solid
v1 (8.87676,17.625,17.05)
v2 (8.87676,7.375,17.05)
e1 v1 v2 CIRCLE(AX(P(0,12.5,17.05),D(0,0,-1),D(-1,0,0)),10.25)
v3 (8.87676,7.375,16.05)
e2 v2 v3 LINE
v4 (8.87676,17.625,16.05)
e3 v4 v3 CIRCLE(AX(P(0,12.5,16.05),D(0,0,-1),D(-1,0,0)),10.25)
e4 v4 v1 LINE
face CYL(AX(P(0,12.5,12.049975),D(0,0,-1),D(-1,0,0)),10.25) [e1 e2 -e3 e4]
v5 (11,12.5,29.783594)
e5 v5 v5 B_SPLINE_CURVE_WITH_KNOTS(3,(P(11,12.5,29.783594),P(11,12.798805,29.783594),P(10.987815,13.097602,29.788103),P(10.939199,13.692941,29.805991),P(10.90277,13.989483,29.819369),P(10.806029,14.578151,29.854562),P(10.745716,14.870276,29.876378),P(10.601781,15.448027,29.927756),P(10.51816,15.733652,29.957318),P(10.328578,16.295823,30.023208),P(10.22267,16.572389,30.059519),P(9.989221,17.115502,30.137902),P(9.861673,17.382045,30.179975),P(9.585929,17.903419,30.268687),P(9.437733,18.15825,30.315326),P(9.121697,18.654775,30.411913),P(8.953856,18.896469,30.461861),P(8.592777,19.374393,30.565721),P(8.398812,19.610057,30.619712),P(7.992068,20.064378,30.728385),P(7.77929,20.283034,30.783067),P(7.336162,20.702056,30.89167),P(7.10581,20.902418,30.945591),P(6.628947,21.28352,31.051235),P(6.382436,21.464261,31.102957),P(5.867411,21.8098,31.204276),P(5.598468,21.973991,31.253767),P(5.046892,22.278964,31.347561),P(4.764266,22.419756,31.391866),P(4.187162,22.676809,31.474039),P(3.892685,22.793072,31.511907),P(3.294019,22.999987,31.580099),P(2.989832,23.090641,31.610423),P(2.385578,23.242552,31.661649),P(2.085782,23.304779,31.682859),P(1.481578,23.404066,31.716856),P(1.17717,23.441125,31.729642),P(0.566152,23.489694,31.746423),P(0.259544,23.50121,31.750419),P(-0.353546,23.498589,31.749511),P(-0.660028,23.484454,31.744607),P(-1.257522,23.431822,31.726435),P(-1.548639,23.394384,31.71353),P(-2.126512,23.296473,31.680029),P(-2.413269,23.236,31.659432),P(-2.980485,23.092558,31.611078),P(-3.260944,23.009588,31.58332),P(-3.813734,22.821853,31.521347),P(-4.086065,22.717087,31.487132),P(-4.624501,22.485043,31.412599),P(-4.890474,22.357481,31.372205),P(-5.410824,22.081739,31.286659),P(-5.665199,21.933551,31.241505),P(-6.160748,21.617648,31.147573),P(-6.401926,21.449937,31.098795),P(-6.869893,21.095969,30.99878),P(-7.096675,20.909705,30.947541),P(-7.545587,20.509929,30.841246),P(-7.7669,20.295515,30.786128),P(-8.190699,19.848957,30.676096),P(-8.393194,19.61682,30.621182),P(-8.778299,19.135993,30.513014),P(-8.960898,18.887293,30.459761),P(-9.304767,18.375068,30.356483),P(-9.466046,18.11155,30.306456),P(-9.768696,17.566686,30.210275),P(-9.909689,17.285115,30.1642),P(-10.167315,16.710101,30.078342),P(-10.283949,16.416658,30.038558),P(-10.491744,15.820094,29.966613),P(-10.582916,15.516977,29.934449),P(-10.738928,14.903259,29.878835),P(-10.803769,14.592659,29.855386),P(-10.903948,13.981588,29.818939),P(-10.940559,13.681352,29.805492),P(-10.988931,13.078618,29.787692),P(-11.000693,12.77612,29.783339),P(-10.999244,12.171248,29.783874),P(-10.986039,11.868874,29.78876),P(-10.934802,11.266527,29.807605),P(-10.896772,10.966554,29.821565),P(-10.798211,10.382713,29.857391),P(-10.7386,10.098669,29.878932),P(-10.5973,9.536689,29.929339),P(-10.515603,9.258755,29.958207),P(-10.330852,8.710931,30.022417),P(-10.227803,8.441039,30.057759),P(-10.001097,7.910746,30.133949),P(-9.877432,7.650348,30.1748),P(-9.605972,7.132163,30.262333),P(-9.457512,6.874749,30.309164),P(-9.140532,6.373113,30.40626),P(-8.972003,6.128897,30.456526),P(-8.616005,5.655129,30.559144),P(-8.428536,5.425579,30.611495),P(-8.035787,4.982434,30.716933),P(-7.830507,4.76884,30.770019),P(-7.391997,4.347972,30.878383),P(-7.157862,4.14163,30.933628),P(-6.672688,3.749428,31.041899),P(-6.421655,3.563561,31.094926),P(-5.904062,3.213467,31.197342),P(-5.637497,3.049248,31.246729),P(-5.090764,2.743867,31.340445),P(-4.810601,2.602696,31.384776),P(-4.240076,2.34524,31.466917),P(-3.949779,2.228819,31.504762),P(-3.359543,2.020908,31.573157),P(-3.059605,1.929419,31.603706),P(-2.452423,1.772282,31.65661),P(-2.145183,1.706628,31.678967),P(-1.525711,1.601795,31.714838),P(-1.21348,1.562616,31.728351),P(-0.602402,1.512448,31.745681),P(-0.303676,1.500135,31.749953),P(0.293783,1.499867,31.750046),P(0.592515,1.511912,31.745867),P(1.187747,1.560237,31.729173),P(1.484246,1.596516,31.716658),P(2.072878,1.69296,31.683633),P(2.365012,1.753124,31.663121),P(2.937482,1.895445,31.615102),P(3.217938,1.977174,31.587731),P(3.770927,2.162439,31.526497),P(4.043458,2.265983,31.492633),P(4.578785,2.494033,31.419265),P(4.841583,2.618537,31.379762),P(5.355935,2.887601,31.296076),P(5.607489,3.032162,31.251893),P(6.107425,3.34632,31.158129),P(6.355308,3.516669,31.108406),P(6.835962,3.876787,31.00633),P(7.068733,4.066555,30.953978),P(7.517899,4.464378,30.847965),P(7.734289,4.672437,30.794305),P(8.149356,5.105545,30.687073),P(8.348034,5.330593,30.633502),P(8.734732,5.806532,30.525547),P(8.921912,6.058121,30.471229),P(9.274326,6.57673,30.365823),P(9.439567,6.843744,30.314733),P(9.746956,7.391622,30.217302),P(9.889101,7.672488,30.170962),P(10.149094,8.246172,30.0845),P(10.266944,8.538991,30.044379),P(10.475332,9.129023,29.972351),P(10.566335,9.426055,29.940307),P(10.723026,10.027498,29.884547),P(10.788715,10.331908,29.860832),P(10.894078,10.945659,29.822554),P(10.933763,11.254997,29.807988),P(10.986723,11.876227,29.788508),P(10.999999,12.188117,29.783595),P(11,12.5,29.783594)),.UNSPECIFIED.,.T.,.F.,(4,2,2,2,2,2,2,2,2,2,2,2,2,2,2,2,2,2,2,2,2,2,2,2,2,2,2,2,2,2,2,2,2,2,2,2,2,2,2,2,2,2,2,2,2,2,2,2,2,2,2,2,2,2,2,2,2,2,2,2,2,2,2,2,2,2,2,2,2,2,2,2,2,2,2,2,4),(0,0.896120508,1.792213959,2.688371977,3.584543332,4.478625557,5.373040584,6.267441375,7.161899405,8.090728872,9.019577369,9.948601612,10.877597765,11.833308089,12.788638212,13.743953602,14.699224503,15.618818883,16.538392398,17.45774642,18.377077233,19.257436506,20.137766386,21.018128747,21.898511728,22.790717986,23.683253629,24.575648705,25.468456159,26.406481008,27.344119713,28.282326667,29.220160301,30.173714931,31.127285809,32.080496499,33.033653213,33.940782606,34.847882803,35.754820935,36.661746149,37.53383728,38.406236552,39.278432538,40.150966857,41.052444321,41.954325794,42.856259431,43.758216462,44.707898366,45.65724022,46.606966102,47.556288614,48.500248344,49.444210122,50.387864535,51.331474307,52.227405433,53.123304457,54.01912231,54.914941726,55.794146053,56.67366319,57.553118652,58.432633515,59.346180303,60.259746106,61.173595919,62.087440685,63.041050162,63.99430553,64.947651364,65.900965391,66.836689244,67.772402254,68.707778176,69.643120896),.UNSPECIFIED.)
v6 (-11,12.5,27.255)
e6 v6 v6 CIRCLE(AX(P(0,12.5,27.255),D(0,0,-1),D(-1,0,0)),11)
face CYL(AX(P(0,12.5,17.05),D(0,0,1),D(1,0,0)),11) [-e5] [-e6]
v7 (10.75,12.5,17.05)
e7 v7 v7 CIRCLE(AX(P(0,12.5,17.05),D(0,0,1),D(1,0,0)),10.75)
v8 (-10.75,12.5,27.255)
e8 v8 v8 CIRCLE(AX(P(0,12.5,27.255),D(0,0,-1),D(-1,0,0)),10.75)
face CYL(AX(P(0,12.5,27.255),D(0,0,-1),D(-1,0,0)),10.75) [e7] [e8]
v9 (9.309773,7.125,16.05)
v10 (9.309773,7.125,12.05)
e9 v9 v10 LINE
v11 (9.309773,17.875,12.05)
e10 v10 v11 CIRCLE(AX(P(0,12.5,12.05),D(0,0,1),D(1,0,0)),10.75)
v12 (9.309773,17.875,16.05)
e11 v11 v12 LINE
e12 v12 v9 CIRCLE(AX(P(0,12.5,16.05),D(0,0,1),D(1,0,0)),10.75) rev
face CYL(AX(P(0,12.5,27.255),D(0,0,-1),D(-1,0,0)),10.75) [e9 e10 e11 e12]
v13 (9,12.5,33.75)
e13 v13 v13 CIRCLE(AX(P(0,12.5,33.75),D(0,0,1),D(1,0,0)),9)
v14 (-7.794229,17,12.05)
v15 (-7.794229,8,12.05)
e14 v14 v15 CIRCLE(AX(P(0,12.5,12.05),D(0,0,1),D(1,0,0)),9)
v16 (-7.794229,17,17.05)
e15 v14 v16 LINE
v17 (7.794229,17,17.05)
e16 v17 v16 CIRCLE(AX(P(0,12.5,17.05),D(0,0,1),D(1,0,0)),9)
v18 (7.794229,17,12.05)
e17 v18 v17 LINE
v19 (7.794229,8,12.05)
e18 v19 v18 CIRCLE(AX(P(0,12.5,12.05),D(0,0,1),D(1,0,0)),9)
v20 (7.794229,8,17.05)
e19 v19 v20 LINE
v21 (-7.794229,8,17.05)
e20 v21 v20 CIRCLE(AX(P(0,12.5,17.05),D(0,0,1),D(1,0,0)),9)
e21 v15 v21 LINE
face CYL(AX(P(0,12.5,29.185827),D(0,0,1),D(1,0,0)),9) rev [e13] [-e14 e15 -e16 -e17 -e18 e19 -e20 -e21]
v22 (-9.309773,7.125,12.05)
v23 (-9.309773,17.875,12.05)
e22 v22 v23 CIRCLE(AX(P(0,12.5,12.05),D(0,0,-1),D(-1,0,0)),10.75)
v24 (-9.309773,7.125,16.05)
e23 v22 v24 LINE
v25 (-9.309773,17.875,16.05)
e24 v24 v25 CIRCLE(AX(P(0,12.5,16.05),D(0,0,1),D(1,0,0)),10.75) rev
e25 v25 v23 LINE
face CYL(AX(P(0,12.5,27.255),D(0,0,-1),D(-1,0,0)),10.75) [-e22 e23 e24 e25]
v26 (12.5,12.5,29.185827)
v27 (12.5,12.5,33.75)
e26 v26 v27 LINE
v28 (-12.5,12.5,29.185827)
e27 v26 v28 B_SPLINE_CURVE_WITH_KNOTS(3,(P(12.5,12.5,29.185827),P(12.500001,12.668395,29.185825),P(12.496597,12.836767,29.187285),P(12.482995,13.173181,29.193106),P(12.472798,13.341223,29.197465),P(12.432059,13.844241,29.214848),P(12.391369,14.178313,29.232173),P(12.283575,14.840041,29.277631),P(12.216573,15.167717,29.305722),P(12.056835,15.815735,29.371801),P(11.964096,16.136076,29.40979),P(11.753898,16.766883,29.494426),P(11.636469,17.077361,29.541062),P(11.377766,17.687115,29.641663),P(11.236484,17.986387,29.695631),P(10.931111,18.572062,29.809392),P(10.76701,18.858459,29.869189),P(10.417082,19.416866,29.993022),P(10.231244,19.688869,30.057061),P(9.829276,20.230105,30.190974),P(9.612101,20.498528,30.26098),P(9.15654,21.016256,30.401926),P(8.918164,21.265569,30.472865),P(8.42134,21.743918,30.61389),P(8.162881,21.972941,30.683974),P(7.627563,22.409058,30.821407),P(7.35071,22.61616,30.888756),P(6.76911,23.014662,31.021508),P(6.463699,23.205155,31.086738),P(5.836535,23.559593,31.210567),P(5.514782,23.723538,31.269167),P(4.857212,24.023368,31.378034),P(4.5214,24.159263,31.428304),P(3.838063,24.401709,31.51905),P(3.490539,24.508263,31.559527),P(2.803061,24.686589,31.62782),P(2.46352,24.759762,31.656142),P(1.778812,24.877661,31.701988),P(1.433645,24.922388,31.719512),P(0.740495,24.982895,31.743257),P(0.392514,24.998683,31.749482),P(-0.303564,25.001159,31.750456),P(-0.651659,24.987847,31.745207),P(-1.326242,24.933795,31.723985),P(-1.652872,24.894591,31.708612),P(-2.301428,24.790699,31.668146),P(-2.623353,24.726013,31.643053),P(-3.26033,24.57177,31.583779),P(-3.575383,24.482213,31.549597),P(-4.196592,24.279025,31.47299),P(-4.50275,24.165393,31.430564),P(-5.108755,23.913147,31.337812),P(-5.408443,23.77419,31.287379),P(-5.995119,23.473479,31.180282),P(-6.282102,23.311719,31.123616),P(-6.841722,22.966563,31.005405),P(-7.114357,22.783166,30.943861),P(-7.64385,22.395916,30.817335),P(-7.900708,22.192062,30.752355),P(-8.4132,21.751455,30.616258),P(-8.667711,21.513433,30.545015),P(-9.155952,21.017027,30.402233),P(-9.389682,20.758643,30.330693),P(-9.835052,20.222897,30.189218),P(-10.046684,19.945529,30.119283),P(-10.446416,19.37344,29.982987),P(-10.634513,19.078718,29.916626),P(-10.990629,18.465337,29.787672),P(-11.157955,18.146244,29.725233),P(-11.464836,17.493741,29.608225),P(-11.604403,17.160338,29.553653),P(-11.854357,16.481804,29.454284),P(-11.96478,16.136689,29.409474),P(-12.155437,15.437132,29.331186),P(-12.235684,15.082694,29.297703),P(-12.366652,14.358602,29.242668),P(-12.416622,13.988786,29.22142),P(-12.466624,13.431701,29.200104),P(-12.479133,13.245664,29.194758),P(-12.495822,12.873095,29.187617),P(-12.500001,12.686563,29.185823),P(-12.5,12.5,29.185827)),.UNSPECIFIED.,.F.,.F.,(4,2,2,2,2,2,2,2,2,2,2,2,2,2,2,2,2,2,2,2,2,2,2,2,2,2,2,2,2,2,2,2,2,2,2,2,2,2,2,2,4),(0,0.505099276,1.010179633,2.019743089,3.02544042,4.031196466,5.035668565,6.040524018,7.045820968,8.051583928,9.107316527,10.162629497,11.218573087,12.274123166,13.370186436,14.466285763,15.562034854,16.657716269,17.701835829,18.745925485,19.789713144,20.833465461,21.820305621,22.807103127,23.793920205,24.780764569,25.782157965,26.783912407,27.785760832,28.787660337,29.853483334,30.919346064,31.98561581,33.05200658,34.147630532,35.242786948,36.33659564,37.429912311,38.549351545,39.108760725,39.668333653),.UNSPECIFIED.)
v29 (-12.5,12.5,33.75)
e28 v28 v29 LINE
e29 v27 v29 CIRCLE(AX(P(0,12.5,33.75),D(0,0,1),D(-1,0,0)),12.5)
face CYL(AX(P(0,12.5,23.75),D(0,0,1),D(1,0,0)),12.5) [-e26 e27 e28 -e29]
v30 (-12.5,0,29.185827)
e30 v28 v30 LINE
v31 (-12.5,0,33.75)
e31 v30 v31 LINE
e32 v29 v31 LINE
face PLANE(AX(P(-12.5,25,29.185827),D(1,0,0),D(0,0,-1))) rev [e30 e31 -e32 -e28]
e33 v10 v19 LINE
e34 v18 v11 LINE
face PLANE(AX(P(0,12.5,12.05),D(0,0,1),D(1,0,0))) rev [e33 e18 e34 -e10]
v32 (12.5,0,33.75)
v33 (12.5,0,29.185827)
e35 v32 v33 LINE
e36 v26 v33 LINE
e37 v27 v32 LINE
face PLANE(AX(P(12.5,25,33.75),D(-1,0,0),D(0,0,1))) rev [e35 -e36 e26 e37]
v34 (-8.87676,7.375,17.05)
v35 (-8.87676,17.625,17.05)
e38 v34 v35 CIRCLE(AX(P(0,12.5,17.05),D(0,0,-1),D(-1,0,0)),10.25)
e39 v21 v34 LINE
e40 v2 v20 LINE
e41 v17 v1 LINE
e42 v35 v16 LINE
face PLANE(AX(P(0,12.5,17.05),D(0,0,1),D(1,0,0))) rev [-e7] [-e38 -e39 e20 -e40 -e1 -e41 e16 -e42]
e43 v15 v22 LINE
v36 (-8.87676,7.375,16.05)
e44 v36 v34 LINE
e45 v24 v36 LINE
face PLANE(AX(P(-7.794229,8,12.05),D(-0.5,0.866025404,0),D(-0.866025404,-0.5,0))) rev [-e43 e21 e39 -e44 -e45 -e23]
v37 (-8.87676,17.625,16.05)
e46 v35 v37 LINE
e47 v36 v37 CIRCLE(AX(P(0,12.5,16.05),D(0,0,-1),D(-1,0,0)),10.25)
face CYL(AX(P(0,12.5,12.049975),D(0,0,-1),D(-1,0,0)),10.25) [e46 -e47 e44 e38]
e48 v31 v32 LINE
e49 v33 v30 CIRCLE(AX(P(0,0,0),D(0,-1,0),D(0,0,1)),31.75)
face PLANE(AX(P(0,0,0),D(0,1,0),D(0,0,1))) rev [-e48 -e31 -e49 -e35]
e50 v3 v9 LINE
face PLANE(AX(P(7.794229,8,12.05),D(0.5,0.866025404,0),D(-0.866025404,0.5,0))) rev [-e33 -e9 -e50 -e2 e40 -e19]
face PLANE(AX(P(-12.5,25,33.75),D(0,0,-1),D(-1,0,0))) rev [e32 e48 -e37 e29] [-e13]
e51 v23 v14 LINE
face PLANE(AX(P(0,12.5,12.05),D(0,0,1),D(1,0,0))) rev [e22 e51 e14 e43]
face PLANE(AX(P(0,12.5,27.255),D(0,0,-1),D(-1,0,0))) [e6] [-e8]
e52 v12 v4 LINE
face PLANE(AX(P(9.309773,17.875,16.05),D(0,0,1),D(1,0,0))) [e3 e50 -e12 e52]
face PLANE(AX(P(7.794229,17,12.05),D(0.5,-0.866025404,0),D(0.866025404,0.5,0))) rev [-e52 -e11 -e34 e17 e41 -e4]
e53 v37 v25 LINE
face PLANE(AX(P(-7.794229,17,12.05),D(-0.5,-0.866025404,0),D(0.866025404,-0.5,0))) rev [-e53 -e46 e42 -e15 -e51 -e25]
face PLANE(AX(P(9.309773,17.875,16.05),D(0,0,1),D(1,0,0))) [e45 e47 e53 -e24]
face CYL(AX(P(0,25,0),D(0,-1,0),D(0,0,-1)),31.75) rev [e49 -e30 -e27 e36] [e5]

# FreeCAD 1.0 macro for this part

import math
import FreeCAD as App
import Part
import Sketcher

V = App.Vector
Q = App.Units.Quantity


def add_polygon(sketch, points):
    """Adds a closed chain of lines whose ends are joined by coincident constraints."""
    first, n = sketch.GeometryCount, len(points)
    for a, b in zip(points, points[1:] + points[:1]):
        sketch.addGeometry(Part.LineSegment(App.Vector(*a, 0), App.Vector(*b, 0)), False)
    for i in range(n):
        sketch.addConstraint(Sketcher.Constraint("Coincident", first + i, 2, first + (i + 1) % n, 1))

doc = App.newDocument("Part")
body = doc.addObject("PartDesign::Body", "Body")

# Sketch on XZ plane
sketch1 = body.newObject("Sketcher::SketchObject", "Sketch")
sketch1.AttachmentSupport = (doc.getObject("XZ_Plane"), [""])
sketch1.MapMode = "FlatFace"
sketch1.addGeometry(Part.LineSegment(V(-12.5, 29.2, 0), V(-12.5, 33.8, 0)), False)
sketch1.addGeometry(Part.LineSegment(V(-12.5, 33.8, 0), V(12.5, 33.8, 0)), False)
sketch1.addGeometry(Part.LineSegment(V(12.5, 33.8, 0), V(12.5, 29.2, 0)), False)
sketch1.addGeometry(Part.ArcOfCircle(Part.Circle(V(0, 0, 0), V(0, 0, 1), 31.8), math.radians(67), math.radians(113)), False)
sketch1.addConstraint(Sketcher.Constraint("Coincident", 0, 2, 1, 1))
sketch1.addConstraint(Sketcher.Constraint("Coincident", 1, 2, 2, 1))
sketch1.addConstraint(Sketcher.Constraint("Coincident", 2, 2, 3, 1))
sketch1.addConstraint(Sketcher.Constraint("Coincident", 3, 2, 0, 1))
sketch1.addConstraint(Sketcher.Constraint("Vertical", 0))
sketch1.addConstraint(Sketcher.Constraint("Horizontal", 1))
sketch1.addConstraint(Sketcher.Constraint("Vertical", 2))
sketch1.addConstraint(Sketcher.Constraint("Coincident", 3, 3, -1, 1))
sketch1.addConstraint(Sketcher.Constraint("Horizontal", 2, 2, 3, 2))
sketch1.addConstraint(Sketcher.Constraint("DistanceX", 1, 1, 1, 2, Q("25 mm")))
sketch1.addConstraint(Sketcher.Constraint("Radius", 3, Q("31.75 mm")))
sketch1.addConstraint(Sketcher.Constraint("DistanceY", -1, 1, 0, 2, Q("33.75 mm")))
pad1 = body.newObject("PartDesign::Pad", "Pad")
pad1.Profile = sketch1
pad1.Length = 25
pad1.Reversed = True

# Sketch on XY plane
sketch2 = body.newObject("Sketcher::SketchObject", "Sketch001")
sketch2.AttachmentSupport = (doc.getObject("XY_Plane"), [""])
sketch2.MapMode = "FlatFace"
sketch2.AttachmentOffset = App.Placement(V(0, 0, 33.75), App.Rotation())
sketch2.addGeometry(Part.Circle(V(0, 12, 0), V(0, 0, 1), 9), False)
sketch2.addConstraint(Sketcher.Constraint("PointOnObject", 0, 3, -2))
sketch2.addConstraint(Sketcher.Constraint("Diameter", 0, Q("18 mm")))
sketch2.addConstraint(Sketcher.Constraint("DistanceY", -1, 1, 0, 3, Q("12.5 mm")))
pocket1 = body.newObject("PartDesign::Pocket", "Pocket")
pocket1.Profile = sketch2
pocket1.Type = "ThroughAll"

# Sketch on XY plane
sketch3 = body.newObject("Sketcher::SketchObject", "Sketch002")
sketch3.AttachmentSupport = (doc.getObject("XY_Plane"), [""])
sketch3.MapMode = "FlatFace"
sketch3.AttachmentOffset = App.Placement(V(0, 0, 33.75), App.Rotation())
sketch3.addGeometry(Part.Circle(V(0, 12, 0), V(0, 0, 1), 11), False)
sketch3.addGeometry(Part.Circle(V(0, 12, 0), V(0, 0, 1), 9), False)
sketch3.addConstraint(Sketcher.Constraint("Coincident", 1, 3, 0, 3))
sketch3.addConstraint(Sketcher.Constraint("PointOnObject", 0, 3, -2))
sketch3.addConstraint(Sketcher.Constraint("Diameter", 0, Q("22 mm")))
sketch3.addConstraint(Sketcher.Constraint("Diameter", 1, Q("18 mm")))
sketch3.addConstraint(Sketcher.Constraint("DistanceY", -1, 1, 0, 3, Q("12.5 mm")))
pad2 = body.newObject("PartDesign::Pad", "Pad001")
pad2.Profile = sketch3
pad2.Length = 16.7
pad2.Reversed = True

# Sketch on XY plane
sketch4 = body.newObject("Sketcher::SketchObject", "Sketch003")
sketch4.AttachmentSupport = (doc.getObject("XY_Plane"), [""])
sketch4.MapMode = "FlatFace"
sketch4.AttachmentOffset = App.Placement(V(0, 0, 17.05), App.Rotation())
sketch4.addGeometry(Part.LineSegment(V(-9.5, 18, 0), V(-7.8, 17, 0)), False)
sketch4.addGeometry(Part.ArcOfCircle(Part.Circle(V(0, 12.5, 0), V(0, 0, 1), 9), math.radians(150), math.radians(210)), False)
sketch4.addGeometry(Part.LineSegment(V(-7.8, 8, 0), V(-9.5, 7, 0)), False)
sketch4.addGeometry(Part.ArcOfCircle(Part.Circle(V(0, 12.5, 0), V(0, 0, 1), 11), math.radians(150), math.radians(210)), False)
sketch4.addGeometry(Part.LineSegment(V(9.5, 7, 0), V(7.8, 8, 0)), False)
sketch4.addGeometry(Part.ArcOfCircle(Part.Circle(V(0, 12.5, 0), V(0, 0, 1), 9), math.radians(-30), math.radians(30)), False)
sketch4.addGeometry(Part.LineSegment(V(7.8, 17, 0), V(9.5, 18, 0)), False)
sketch4.addGeometry(Part.ArcOfCircle(Part.Circle(V(0, 12.5, 0), V(0, 0, 1), 11), math.radians(-30), math.radians(30)), False)
sketch4.addConstraint(Sketcher.Constraint("Coincident", 0, 2, 1, 1))
sketch4.addConstraint(Sketcher.Constraint("Coincident", 1, 2, 2, 1))
sketch4.addConstraint(Sketcher.Constraint("Coincident", 2, 2, 3, 2))
sketch4.addConstraint(Sketcher.Constraint("Coincident", 3, 1, 0, 1))
sketch4.addConstraint(Sketcher.Constraint("Coincident", 4, 2, 5, 1))
sketch4.addConstraint(Sketcher.Constraint("Coincident", 5, 2, 6, 1))
sketch4.addConstraint(Sketcher.Constraint("Coincident", 6, 2, 7, 2))
sketch4.addConstraint(Sketcher.Constraint("Coincident", 7, 1, 4, 1))
sketch4.addConstraint(Sketcher.Constraint("Coincident", 3, 3, 1, 3))
sketch4.addConstraint(Sketcher.Constraint("Coincident", 5, 3, 1, 3))
sketch4.addConstraint(Sketcher.Constraint("Coincident", 7, 3, 1, 3))
sketch4.addConstraint(Sketcher.Constraint("Equal", 1, 5))
sketch4.addConstraint(Sketcher.Constraint("Equal", 3, 7))
sketch4.addConstraint(Sketcher.Constraint("Symmetric", 1, 2, 4, 2, -2))
sketch4.addConstraint(Sketcher.Constraint("Parallel", 0, 4))
sketch4.addConstraint(Sketcher.Constraint("Parallel", 2, 6))
sketch4.addConstraint(Sketcher.Constraint("Horizontal", 0, 2, 5, 2))
sketch4.addConstraint(Sketcher.Constraint("Horizontal", 3, 1, 6, 2))
sketch4.addConstraint(Sketcher.Constraint("Vertical", 0, 2, 1, 2))
sketch4.addConstraint(Sketcher.Constraint("Radius", 1, Q("9 mm")))
sketch4.addConstraint(Sketcher.Constraint("Radius", 3, Q("11 mm")))
sketch4.addConstraint(Sketcher.Constraint("Angle", 0, Q("-30 deg")))
sketch4.addConstraint(Sketcher.Constraint("DistanceY", -1, 1, 0, 2, Q("17 mm")))
sketch4.addConstraint(Sketcher.Constraint("DistanceY", -1, 1, 1, 2, Q("8 mm")))
pad3 = body.newObject("PartDesign::Pad", "Pad002")
pad3.Profile = sketch4
pad3.Length = 5
pad3.Reversed = True

# Sketch on XY plane
sketch5 = body.newObject("Sketcher::SketchObject", "Sketch004")
sketch5.AttachmentSupport = (doc.getObject("XY_Plane"), [""])
sketch5.MapMode = "FlatFace"
sketch5.AttachmentOffset = App.Placement(V(0, 0, 27.255), App.Rotation())
sketch5.addGeometry(Part.Circle(V(0, 12, 0), V(0, 0, 1), 11), False)
sketch5.addGeometry(Part.Circle(V(0, 12, 0), V(0, 0, 1), 11), False)
sketch5.addConstraint(Sketcher.Constraint("Coincident", 1, 3, 0, 3))
sketch5.addConstraint(Sketcher.Constraint("PointOnObject", 0, 3, -2))
sketch5.addConstraint(Sketcher.Constraint("Diameter", 0, Q("22 mm")))
sketch5.addConstraint(Sketcher.Constraint("Diameter", 1, Q("21.5 mm")))
sketch5.addConstraint(Sketcher.Constraint("DistanceY", -1, 1, 0, 3, Q("12.5 mm")))
pocket2 = body.newObject("PartDesign::Pocket", "Pocket001")
pocket2.Profile = sketch5
pocket2.Length = 15.205

# Sketch on an angled plane
sketch6 = body.newObject("Sketcher::SketchObject", "Sketch005")
sketch6.Placement = App.Placement(V(-5.412659, 9.375, 0), App.Rotation(V(0.866025404, 0.5, 0), V(0, 0, -1), V(-0.5, 0.866025404, 0), "ZXY"))
add_polygon(sketch6, [(16.5, -16.1), (16.5, -17.1), (17, -17.1), (17, -16.1)])  # lines 0-3
sketch6.addGeometry(Part.LineSegment(V(6.3, -16.1, 0), V(6.3, -17.1, 0)), True)  # axis
sketch6.addConstraint(Sketcher.Constraint("Vertical", 0))
sketch6.addConstraint(Sketcher.Constraint("Horizontal", 1))
sketch6.addConstraint(Sketcher.Constraint("Vertical", 2))
sketch6.addConstraint(Sketcher.Constraint("Horizontal", 3))
sketch6.addConstraint(Sketcher.Constraint("Vertical", 4))
sketch6.addConstraint(Sketcher.Constraint("Horizontal", 3, 2, 4, 1))
sketch6.addConstraint(Sketcher.Constraint("Horizontal", 1, 2, 4, 2))
sketch6.addConstraint(Sketcher.Constraint("DistanceY", 0, 2, 0, 1, Q("1 mm")))
sketch6.addConstraint(Sketcher.Constraint("DistanceX", 1, 1, 1, 2, Q("0.5 mm")))
sketch6.addConstraint(Sketcher.Constraint("DistanceX", -1, 1, 1, 2, Q("17 mm")))
sketch6.addConstraint(Sketcher.Constraint("DistanceY", 0, 2, -1, 1, Q("17.05 mm")))
sketch6.addConstraint(Sketcher.Constraint("DistanceX", -1, 1, 4, 1, Q("6.25 mm")))
groove = body.newObject("PartDesign::Groove", "Groove")
groove.Profile = sketch6
groove.ReferenceAxis = (sketch6, ["Axis0"])
groove.Angle = 360

# Sketch on XY plane
sketch7 = body.newObject("Sketcher::SketchObject", "Sketch006")
sketch7.AttachmentSupport = (doc.getObject("XY_Plane"), [""])
sketch7.MapMode = "FlatFace"
sketch7.AttachmentOffset = App.Placement(V(0, 0, 33.75), App.Rotation())
add_polygon(sketch7, [(-18, 30), (-18, -5), (18, -5), (18, 30)])  # lines 0-3
sketch7.addGeometry(Part.LineSegment(V(-12, 0, 0), V(-12, 12, 0)), False)  # 4
sketch7.addGeometry(Part.ArcOfCircle(Part.Circle(V(0, 12, 0), V(0, 0, 1), 12), math.radians(0), math.radians(180)), False)  # 5
sketch7.addGeometry(Part.LineSegment(V(12, 12, 0), V(12, 0, 0)), False)  # 6
sketch7.addGeometry(Part.LineSegment(V(12, 0, 0), V(-12, 0, 0)), False)  # 7
sketch7.addConstraint(Sketcher.Constraint("Tangent", 4, 2, 5, 2))
sketch7.addConstraint(Sketcher.Constraint("Tangent", 5, 1, 6, 1))
sketch7.addConstraint(Sketcher.Constraint("Coincident", 6, 2, 7, 1))
sketch7.addConstraint(Sketcher.Constraint("Coincident", 7, 2, 4, 1))
sketch7.addConstraint(Sketcher.Constraint("Vertical", 0))
sketch7.addConstraint(Sketcher.Constraint("Horizontal", 1))
sketch7.addConstraint(Sketcher.Constraint("Vertical", 2))
sketch7.addConstraint(Sketcher.Constraint("Horizontal", 3))
sketch7.addConstraint(Sketcher.Constraint("Vertical", 4))
sketch7.addConstraint(Sketcher.Constraint("Vertical", 6))
sketch7.addConstraint(Sketcher.Constraint("Horizontal", 7))
sketch7.addConstraint(Sketcher.Constraint("Symmetric", 6, 2, 7, 2, -1, 1))
sketch7.addConstraint(Sketcher.Constraint("Equal", 3, 0))
sketch7.addConstraint(Sketcher.Constraint("Radius", 5, Q("12.5 mm")))
sketch7.addConstraint(Sketcher.Constraint("DistanceY", 4, 1, 4, 2, Q("12.5 mm")))
sketch7.addConstraint(Sketcher.Constraint("DistanceX", 1, 1, 1, 2, Q("35.296 mm")))
sketch7.addConstraint(Sketcher.Constraint("DistanceX", 0, 2, -1, 1, Q("17.648 mm")))
sketch7.addConstraint(Sketcher.Constraint("DistanceY", 0, 2, -1, 1, Q("5.148 mm")))
pocket3 = body.newObject("PartDesign::Pocket", "Pocket002")
pocket3.Profile = sketch7
pocket3.Length = 10

doc.recompute()
